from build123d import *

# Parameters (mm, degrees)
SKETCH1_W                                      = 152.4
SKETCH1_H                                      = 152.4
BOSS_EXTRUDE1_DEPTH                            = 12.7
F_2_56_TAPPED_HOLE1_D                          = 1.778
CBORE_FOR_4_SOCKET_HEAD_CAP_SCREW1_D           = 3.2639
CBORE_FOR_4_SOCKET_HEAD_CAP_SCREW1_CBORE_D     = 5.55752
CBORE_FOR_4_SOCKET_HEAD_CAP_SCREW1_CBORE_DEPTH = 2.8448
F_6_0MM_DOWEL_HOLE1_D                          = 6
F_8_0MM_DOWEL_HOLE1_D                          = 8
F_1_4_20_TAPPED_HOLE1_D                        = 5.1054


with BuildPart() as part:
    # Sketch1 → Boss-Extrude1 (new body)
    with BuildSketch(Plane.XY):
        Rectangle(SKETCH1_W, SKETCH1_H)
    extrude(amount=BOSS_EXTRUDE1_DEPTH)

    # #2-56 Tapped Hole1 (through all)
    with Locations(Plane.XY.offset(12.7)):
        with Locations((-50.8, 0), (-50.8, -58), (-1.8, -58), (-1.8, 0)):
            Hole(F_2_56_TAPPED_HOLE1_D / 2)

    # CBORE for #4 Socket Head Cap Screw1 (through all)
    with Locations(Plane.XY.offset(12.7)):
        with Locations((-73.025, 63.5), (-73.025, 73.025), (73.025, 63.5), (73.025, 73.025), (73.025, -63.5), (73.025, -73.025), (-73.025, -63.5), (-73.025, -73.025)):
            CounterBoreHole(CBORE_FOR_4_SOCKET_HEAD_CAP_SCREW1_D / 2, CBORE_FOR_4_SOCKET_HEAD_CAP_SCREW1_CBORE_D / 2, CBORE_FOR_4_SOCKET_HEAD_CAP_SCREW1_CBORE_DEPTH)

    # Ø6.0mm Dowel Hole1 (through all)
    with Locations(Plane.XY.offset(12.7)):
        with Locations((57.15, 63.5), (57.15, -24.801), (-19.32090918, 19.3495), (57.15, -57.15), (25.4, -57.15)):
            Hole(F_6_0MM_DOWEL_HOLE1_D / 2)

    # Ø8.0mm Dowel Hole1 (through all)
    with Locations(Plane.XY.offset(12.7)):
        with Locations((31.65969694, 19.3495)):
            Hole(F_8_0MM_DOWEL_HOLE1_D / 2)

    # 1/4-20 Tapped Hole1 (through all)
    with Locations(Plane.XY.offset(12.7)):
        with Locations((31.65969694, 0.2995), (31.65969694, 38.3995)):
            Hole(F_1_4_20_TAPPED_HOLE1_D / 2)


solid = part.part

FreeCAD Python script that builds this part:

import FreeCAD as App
import Part
import Sketcher
Q = App.Units.Quantity


def add_polygon(sketch, points):
    """Adds a closed chain of lines whose ends are joined by coincident constraints."""
    first, n = sketch.GeometryCount, len(points)
    for a, b in zip(points, points[1:] + points[:1]):
        sketch.addGeometry(Part.LineSegment(App.Vector(*a, 0), App.Vector(*b, 0)), False)
    for i in range(n):
        sketch.addConstraint(Sketcher.Constraint("Coincident", first + i, 2, first + (i + 1) % n, 1))

doc = App.newDocument("Part")
body = doc.addObject("PartDesign::Body", "Body")

sketch1 = body.newObject("Sketcher::SketchObject", "Sketch")
sketch1.AttachmentSupport = (doc.getObject("XY_Plane"), [""])
sketch1.MapMode = "FlatFace"
add_polygon(sketch1, [(-76, 76), (-76, -76), (76, -76), (76, 76)])
sketch1.addConstraint([
    Sketcher.Constraint("Vertical", 0),
    Sketcher.Constraint("Horizontal", 1),
    Sketcher.Constraint("Vertical", 2),
    Sketcher.Constraint("Horizontal", 3),
    Sketcher.Constraint("Symmetric", 0, 2, 2, 2, -1, 1),
    Sketcher.Constraint("Equal", 3, 0),
    Sketcher.Constraint("DistanceX", 1, 1, 1, 2, Q("6 in")),
])
pad1 = body.newObject("PartDesign::Pad", "Pad")
pad1.Profile = sketch1
pad1.Length = Q("0.5 in")

sketch2 = body.newObject("Sketcher::SketchObject", "Sketch001")
sketch2.AttachmentSupport = (doc.getObject("XY_Plane"), [""])
sketch2.MapMode = "FlatFace"
sketch2.AttachmentOffset = App.Placement(App.Vector(0, 0, 0.5 * 25.4), App.Rotation())
sketch2.addGeometry([
    Part.Circle(App.Vector(-50.8, 0, 0), App.Vector(0, 0, 1), 0.9),
    Part.Circle(App.Vector(-50.8, -58, 0), App.Vector(0, 0, 1), 0.9),
    Part.Circle(App.Vector(-1.8, -58, 0), App.Vector(0, 0, 1), 0.9),
    Part.Circle(App.Vector(-1.8, 0, 0), App.Vector(0, 0, 1), 0.9),
], False)
sketch2.addConstraint([
    Sketcher.Constraint("Equal", 0, 1),
    Sketcher.Constraint("Equal", 1, 2),
    Sketcher.Constraint("Equal", 2, 3),
    Sketcher.Constraint("PointOnObject", 0, 3, -1),
    Sketcher.Constraint("PointOnObject", 3, 3, -1),
    Sketcher.Constraint("Horizontal", 1, 3, 2, 3),
    Sketcher.Constraint("Vertical", 0, 3, 1, 3),
    Sketcher.Constraint("Vertical", 2, 3, 3, 3),
    Sketcher.Constraint("Diameter", 0, Q("0.07 in")),
    Sketcher.Constraint("DistanceX", 0, 3, -1, 1, Q("2 in")),
    Sketcher.Constraint("DistanceY", 1, 3, -1, 1, 58.0),
    Sketcher.Constraint("DistanceX", 2, 3, -1, 1, 1.8),
])
doc.recompute()
hole = body.newObject("PartDesign::Hole", "Hole")
hole.Profile = sketch2
hole.ThreadType = "None"
hole.Diameter = Q("0.07 in")
hole.DepthType = "ThroughAll"

sketch3 = body.newObject("Sketcher::SketchObject", "Sketch002")
sketch3.AttachmentSupport = (doc.getObject("XY_Plane"), [""])
sketch3.MapMode = "FlatFace"
sketch3.AttachmentOffset = App.Placement(App.Vector(0, 0, 0.5 * 25.4), App.Rotation())
sketch3.addGeometry([
    Part.Circle(App.Vector(-73, 63.5, 0), App.Vector(0, 0, 1), 1.6),
    Part.Circle(App.Vector(-73, 73, 0), App.Vector(0, 0, 1), 1.6),
    Part.Circle(App.Vector(73, 63.5, 0), App.Vector(0, 0, 1), 1.6),
    Part.Circle(App.Vector(73, 73, 0), App.Vector(0, 0, 1), 1.6),
    Part.Circle(App.Vector(73, -63.5, 0), App.Vector(0, 0, 1), 1.6),
    Part.Circle(App.Vector(73, -73, 0), App.Vector(0, 0, 1), 1.6),
    Part.Circle(App.Vector(-73, -63.5, 0), App.Vector(0, 0, 1), 1.6),
    Part.Circle(App.Vector(-73, -73, 0), App.Vector(0, 0, 1), 1.6),
], False)
sketch3.addConstraint([
    Sketcher.Constraint("Equal", 0, 1),
    Sketcher.Constraint("Equal", 1, 2),
    Sketcher.Constraint("Equal", 2, 3),
    Sketcher.Constraint("Equal", 3, 4),
    Sketcher.Constraint("Equal", 4, 5),
    Sketcher.Constraint("Equal", 5, 6),
    Sketcher.Constraint("Equal", 6, 7),
    Sketcher.Constraint("Symmetric", 0, 3, 4, 3, -1, 1),
    Sketcher.Constraint("Symmetric", 1, 3, 5, 3, -1, 1),
    Sketcher.Constraint("Symmetric", 2, 3, 6, 3, -1, 1),
    Sketcher.Constraint("Symmetric", 3, 3, 7, 3, -1, 1),
    Sketcher.Constraint("Symmetric", 0, 3, 2, 3, -2),
    Sketcher.Constraint("Symmetric", 1, 3, 3, 3, -2),
    Sketcher.Constraint("Vertical", 0, 3, 1, 3),
    Sketcher.Constraint("DistanceY", 4, 3, 2, 3, Q("5 in")),
    Sketcher.Constraint("Diameter", 0, Q("0.1285 in")),
    Sketcher.Constraint("DistanceX", 0, 3, 2, 3, Q("5.75 in")),
    Sketcher.Constraint("DistanceY", 5, 3, 3, 3, Q("5.75 in")),
])
doc.recompute()
hole2 = body.newObject("PartDesign::Hole", "Hole001")
hole2.Profile = sketch3
hole2.ThreadType = "None"
hole2.Diameter = Q("0.1285 in")
hole2.DepthType = "ThroughAll"
hole2.HoleCutType = "Counterbore"
hole2.HoleCutDiameter = Q("0.2188 in")
hole2.HoleCutDepth = Q("0.112 in")

sketch4 = body.newObject("Sketcher::SketchObject", "Sketch003")
sketch4.AttachmentSupport = (doc.getObject("XY_Plane"), [""])
sketch4.MapMode = "FlatFace"
sketch4.AttachmentOffset = App.Placement(App.Vector(0, 0, 0.5 * 25.4), App.Rotation())
sketch4.addGeometry([
    Part.Circle(App.Vector(57.1, 63.5, 0), App.Vector(0, 0, 1), 3),
    Part.Circle(App.Vector(57.1, -24.8, 0), App.Vector(0, 0, 1), 3),
    Part.Circle(App.Vector(-19.3, 19.3, 0), App.Vector(0, 0, 1), 3),
    Part.Circle(App.Vector(57.1, -57.1, 0), App.Vector(0, 0, 1), 3),
    Part.Circle(App.Vector(25.4, -57.1, 0), App.Vector(0, 0, 1), 3),
], False)
sketch4.addConstraint([
    Sketcher.Constraint("Equal", 0, 1),
    Sketcher.Constraint("Equal", 1, 2),
    Sketcher.Constraint("Equal", 2, 3),
    Sketcher.Constraint("Equal", 3, 4),
    Sketcher.Constraint("Horizontal", 3, 3, 4, 3),
    Sketcher.Constraint("Vertical", 0, 3, 1, 3),
    Sketcher.Constraint("Vertical", 1, 3, 3, 3),
    Sketcher.Constraint("DistanceX", -1, 1, 4, 3, Q("1 in")),
    Sketcher.Constraint("DistanceY", -1, 1, 0, 3, Q("2.5 in")),
    Sketcher.Constraint("Diameter", 0, 6.0),
    Sketcher.Constraint("DistanceX", -1, 1, 0, 3, Q("2.25 in")),
    Sketcher.Constraint("DistanceY", 3, 3, -1, 1, Q("2.25 in")),
    Sketcher.Constraint("DistanceY", 1, 3, -1, 1, 24.801),
    Sketcher.Constraint("DistanceY", -1, 1, 2, 3, 19.3495),
    Sketcher.Constraint("DistanceX", 2, 3, -1, 1, 19.320909),
])
doc.recompute()
hole3 = body.newObject("PartDesign::Hole", "Hole002")
hole3.Profile = sketch4
hole3.ThreadType = "None"
hole3.Diameter = 6
hole3.DepthType = "ThroughAll"

sketch5 = body.newObject("Sketcher::SketchObject", "Sketch004")
sketch5.AttachmentSupport = (doc.getObject("XY_Plane"), [""])
sketch5.MapMode = "FlatFace"
sketch5.AttachmentOffset = App.Placement(App.Vector(0, 0, 0.5 * 25.4), App.Rotation())
sketch5.addGeometry(Part.Circle(App.Vector(31.7, 19.3, 0), App.Vector(0, 0, 1), 4), False)
sketch5.addConstraint([
    Sketcher.Constraint("Diameter", 0, 8.0),
    Sketcher.Constraint("DistanceY", -1, 1, 0, 3, 19.3495),
    Sketcher.Constraint("DistanceX", -1, 1, 0, 3, 31.659697),
])
doc.recompute()
hole4 = body.newObject("PartDesign::Hole", "Hole003")
hole4.Profile = sketch5
hole4.ThreadType = "None"
hole4.Diameter = 8
hole4.DepthType = "ThroughAll"

sketch6 = body.newObject("Sketcher::SketchObject", "Sketch005")
sketch6.AttachmentSupport = (doc.getObject("XY_Plane"), [""])
sketch6.MapMode = "FlatFace"
sketch6.AttachmentOffset = App.Placement(App.Vector(0, 0, 0.5 * 25.4), App.Rotation())
sketch6.addGeometry([
    Part.Circle(App.Vector(31.7, 0.3, 0), App.Vector(0, 0, 1), 2.6),
    Part.Circle(App.Vector(31.7, 38.4, 0), App.Vector(0, 0, 1), 2.6),
], False)
sketch6.addConstraint([
    Sketcher.Constraint("Equal", 0, 1),
    Sketcher.Constraint("Vertical", 0, 3, 1, 3),
    Sketcher.Constraint("Diameter", 0, Q("0.201 in")),
    Sketcher.Constraint("DistanceY", 0, 3, 1, 3, Q("1.5 in")),
    Sketcher.Constraint("DistanceY", -1, 1, 0, 3, 0.2995),
    Sketcher.Constraint("DistanceX", -1, 1, 0, 3, 31.659697),
])
doc.recompute()
hole5 = body.newObject("PartDesign::Hole", "Hole004")
hole5.Profile = sketch6
hole5.ThreadType = "None"
hole5.Diameter = Q("0.201 in")
hole5.DepthType = "ThroughAll"

doc.recompute()
